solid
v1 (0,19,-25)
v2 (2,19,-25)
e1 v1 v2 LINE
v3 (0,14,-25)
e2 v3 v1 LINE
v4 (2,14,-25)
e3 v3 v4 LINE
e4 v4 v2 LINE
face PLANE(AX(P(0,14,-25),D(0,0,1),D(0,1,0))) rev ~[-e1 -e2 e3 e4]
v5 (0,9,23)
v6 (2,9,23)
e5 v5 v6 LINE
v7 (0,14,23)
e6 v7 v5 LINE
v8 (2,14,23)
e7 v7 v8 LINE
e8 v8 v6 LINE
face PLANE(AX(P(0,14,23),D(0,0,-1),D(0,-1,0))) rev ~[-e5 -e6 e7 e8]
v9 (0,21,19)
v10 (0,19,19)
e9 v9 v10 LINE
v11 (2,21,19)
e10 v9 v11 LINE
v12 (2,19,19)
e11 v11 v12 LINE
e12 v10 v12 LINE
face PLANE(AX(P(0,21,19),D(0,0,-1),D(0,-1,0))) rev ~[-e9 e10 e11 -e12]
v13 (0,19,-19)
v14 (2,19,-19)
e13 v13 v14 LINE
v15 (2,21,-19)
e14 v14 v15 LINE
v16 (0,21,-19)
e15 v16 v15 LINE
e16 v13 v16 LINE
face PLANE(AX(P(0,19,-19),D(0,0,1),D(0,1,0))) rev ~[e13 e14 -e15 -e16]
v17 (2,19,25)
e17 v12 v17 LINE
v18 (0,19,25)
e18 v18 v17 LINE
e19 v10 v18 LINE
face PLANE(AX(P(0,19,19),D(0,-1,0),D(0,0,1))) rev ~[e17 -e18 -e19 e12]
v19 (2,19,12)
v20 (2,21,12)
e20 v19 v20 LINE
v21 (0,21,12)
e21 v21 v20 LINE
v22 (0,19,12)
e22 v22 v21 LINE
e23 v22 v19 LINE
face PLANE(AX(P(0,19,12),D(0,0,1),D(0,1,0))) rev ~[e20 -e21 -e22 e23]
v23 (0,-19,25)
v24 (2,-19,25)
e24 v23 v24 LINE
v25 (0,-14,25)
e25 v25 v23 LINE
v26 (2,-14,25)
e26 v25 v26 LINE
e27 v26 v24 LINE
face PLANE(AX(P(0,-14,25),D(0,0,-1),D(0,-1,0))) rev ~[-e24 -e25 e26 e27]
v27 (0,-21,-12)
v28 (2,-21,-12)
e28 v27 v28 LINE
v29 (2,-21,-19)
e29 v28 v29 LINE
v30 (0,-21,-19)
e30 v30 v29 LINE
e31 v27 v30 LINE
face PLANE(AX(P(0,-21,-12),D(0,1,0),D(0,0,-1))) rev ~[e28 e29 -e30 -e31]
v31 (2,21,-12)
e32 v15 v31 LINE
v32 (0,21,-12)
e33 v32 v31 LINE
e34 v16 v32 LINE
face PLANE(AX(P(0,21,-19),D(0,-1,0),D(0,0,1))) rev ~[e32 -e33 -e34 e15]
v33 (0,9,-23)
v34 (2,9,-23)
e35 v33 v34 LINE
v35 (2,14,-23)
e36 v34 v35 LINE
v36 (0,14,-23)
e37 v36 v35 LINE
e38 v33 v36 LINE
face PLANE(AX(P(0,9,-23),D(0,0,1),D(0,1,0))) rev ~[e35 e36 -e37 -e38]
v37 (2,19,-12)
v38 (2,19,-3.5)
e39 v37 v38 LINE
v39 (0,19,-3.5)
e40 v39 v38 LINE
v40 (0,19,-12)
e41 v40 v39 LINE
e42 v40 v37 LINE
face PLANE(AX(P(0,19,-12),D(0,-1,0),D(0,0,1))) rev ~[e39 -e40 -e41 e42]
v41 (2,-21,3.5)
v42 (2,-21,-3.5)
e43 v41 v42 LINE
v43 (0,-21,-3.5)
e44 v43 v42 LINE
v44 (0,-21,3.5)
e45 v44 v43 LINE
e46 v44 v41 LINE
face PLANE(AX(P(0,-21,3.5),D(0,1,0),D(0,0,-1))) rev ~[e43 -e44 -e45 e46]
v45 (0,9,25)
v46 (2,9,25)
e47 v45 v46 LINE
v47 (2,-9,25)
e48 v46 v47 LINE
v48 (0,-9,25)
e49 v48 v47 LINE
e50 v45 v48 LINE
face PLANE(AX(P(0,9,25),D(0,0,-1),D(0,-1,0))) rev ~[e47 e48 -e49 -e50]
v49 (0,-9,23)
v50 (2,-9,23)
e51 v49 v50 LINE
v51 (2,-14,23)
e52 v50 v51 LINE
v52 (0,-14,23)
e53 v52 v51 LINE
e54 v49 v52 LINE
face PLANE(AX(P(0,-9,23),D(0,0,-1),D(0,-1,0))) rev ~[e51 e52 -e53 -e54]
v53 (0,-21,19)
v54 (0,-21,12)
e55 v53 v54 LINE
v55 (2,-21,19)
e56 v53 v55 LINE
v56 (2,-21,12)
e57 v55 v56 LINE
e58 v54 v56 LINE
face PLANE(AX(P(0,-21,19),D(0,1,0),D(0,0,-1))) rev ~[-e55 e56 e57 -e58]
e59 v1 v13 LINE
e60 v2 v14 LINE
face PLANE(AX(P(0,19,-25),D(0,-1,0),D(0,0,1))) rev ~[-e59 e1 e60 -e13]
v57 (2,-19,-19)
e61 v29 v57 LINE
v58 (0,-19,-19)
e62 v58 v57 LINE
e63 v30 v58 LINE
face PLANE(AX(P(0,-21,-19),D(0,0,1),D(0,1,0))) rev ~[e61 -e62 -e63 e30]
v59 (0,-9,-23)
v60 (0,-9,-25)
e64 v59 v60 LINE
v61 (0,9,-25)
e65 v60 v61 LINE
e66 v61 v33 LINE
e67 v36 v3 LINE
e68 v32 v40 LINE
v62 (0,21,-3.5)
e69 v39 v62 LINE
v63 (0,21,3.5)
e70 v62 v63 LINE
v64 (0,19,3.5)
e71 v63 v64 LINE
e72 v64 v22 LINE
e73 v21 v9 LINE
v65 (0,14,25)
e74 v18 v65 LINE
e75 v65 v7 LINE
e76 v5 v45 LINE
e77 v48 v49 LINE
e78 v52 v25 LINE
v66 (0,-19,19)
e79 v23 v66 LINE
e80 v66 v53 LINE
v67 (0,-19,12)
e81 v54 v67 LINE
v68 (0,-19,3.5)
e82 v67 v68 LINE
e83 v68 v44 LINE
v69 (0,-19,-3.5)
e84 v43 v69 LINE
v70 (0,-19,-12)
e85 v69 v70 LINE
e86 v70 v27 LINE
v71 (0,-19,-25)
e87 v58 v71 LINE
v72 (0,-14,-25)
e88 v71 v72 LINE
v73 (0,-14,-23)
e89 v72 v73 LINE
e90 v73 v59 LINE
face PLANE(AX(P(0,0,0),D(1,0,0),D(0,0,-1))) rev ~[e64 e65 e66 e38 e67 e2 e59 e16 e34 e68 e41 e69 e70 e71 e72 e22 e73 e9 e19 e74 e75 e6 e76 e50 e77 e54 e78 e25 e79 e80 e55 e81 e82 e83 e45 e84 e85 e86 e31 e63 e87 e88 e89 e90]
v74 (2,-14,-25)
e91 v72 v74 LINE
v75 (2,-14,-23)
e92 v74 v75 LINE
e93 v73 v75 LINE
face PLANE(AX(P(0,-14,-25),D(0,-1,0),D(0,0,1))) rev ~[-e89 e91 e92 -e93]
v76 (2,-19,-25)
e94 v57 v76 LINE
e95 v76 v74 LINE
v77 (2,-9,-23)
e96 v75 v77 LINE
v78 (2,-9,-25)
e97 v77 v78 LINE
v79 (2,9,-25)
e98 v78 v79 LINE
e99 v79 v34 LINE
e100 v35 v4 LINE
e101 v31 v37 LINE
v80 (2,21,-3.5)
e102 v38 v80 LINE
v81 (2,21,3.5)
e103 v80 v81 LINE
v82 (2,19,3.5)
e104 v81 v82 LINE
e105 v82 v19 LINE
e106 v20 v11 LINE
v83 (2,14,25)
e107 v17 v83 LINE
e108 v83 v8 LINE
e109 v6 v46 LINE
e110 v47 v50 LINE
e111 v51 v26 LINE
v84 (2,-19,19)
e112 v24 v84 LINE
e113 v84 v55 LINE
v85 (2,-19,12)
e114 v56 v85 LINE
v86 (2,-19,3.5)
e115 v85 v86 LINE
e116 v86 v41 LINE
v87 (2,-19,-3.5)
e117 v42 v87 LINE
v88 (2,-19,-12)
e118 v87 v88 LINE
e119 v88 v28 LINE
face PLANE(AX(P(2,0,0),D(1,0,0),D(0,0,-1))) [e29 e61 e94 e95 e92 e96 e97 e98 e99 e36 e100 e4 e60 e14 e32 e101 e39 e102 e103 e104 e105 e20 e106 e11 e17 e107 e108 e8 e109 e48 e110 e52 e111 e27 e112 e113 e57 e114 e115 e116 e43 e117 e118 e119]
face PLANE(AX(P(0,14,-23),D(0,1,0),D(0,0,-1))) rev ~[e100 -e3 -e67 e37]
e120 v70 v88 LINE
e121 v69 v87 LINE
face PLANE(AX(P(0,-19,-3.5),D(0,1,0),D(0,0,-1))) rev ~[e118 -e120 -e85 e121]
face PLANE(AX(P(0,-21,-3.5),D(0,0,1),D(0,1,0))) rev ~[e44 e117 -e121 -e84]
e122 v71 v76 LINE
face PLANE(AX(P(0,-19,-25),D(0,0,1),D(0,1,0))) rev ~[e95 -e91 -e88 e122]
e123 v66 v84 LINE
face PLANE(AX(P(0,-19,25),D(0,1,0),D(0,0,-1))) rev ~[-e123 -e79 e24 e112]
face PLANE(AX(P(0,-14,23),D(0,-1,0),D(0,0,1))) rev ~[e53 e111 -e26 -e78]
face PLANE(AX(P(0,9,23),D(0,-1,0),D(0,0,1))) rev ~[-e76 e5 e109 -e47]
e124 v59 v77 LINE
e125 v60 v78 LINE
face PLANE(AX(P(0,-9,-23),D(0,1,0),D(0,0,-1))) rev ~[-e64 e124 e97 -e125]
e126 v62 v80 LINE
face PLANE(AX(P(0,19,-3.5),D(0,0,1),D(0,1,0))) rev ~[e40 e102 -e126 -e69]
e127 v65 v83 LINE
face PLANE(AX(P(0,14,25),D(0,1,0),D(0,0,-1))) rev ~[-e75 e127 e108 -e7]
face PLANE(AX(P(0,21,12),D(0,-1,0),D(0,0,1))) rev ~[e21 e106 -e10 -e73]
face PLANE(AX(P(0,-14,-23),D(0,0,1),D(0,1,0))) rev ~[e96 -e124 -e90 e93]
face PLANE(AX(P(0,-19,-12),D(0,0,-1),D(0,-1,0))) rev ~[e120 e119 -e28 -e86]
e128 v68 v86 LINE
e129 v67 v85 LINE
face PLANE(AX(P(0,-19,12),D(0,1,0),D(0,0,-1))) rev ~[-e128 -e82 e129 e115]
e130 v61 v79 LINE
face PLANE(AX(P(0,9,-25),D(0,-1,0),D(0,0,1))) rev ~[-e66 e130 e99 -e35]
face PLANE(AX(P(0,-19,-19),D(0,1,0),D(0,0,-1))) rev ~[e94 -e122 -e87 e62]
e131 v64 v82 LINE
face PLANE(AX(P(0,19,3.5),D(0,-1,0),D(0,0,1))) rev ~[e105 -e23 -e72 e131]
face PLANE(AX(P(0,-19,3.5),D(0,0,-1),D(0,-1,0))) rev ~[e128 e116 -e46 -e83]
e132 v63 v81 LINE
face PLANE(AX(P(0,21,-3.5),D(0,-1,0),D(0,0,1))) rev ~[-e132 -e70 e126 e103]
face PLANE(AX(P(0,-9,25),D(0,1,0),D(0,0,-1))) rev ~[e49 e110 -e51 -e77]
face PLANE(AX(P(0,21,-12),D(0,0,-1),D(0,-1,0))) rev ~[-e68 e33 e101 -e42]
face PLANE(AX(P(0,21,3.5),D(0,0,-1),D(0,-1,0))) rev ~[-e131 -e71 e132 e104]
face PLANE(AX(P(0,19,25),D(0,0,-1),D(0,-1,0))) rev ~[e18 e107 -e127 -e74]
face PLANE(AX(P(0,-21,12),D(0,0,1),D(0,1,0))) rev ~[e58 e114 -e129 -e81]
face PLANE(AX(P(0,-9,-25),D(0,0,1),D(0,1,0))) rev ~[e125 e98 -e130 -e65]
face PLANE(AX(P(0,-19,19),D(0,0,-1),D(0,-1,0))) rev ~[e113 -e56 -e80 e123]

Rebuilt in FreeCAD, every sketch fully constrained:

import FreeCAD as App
import Part
import Sketcher
from FreeCAD import Vector
Q = App.Units.Quantity


def add_polygon(sketch, points):
    """Adds a closed chain of lines whose ends are joined by coincident constraints."""
    first, n = sketch.GeometryCount, len(points)
    for a, b in zip(points, points[1:] + points[:1]):
        sketch.addGeometry(Part.LineSegment(App.Vector(*a, 0), App.Vector(*b, 0)), False)
    for i in range(n):
        sketch.addConstraint(Sketcher.Constraint("Coincident", first + i, 2, first + (i + 1) % n, 1))

doc = App.newDocument("Part")
body = doc.addObject("PartDesign::Body", "Body")

# Sketch on YZ plane
sketch1 = body.newObject("Sketcher::SketchObject", "Sketch")
sketch1.AttachmentSupport = (doc.getObject("YZ_Plane"), [""])
sketch1.MapMode = "FlatFace"
add_polygon(sketch1, [(19, 19), (19, 25), (14, 25), (14, 23), (9, 23), (9, 25), (-9, 25), (-9, 23), (-14, 23), (-14, 25), (-19, 25), (-19, 19), (-21, 19), (-21, 12), (-19, 12), (-19, 3.5), (-21, 3.5), (-21, -3.5), (-19, -3.5), (-19, -12), (-21, -12), (-21, -19), (-19, -19), (-19, -25), (-14, -25), (-14, -23), (-9, -23), (-9, -25), (9, -25), (9, -23), (14, -23), (14, -25), (19, -25), (19, -19), (21, -19), (21, -12), (19, -12), (19, -3.5), (21, -3.5), (21, 3.5), (19, 3.5), (19, 12), (21, 12), (21, 19)])  # lines 0-43
sketch1.addConstraint([
    Sketcher.Constraint("Vertical", 0),
    Sketcher.Constraint("Horizontal", 1),
    Sketcher.Constraint("Vertical", 2),
    Sketcher.Constraint("Horizontal", 3),
    Sketcher.Constraint("Vertical", 4),
    Sketcher.Constraint("Horizontal", 5),
    Sketcher.Constraint("Vertical", 6),
    Sketcher.Constraint("Horizontal", 7),
    Sketcher.Constraint("Vertical", 8),
    Sketcher.Constraint("Horizontal", 9),
    Sketcher.Constraint("Vertical", 10),
    Sketcher.Constraint("Horizontal", 11),
    Sketcher.Constraint("Vertical", 12),
    Sketcher.Constraint("Horizontal", 13),
    Sketcher.Constraint("Vertical", 14),
    Sketcher.Constraint("Horizontal", 15),
    Sketcher.Constraint("Vertical", 16),
    Sketcher.Constraint("Horizontal", 17),
    Sketcher.Constraint("Vertical", 18),
    Sketcher.Constraint("Horizontal", 19),
    Sketcher.Constraint("Vertical", 20),
    Sketcher.Constraint("Horizontal", 21),
    Sketcher.Constraint("Vertical", 22),
    Sketcher.Constraint("Horizontal", 23),
    Sketcher.Constraint("Vertical", 24),
    Sketcher.Constraint("Horizontal", 25),
    Sketcher.Constraint("Vertical", 26),
    Sketcher.Constraint("Horizontal", 27),
    Sketcher.Constraint("Vertical", 28),
    Sketcher.Constraint("Horizontal", 29),
    Sketcher.Constraint("Vertical", 30),
    Sketcher.Constraint("Horizontal", 31),
    Sketcher.Constraint("Vertical", 32),
    Sketcher.Constraint("Horizontal", 33),
    Sketcher.Constraint("Vertical", 34),
    Sketcher.Constraint("Horizontal", 35),
    Sketcher.Constraint("Vertical", 36),
    Sketcher.Constraint("Horizontal", 37),
    Sketcher.Constraint("Vertical", 38),
    Sketcher.Constraint("Horizontal", 39),
    Sketcher.Constraint("Vertical", 40),
    Sketcher.Constraint("Horizontal", 41),
    Sketcher.Constraint("Vertical", 42),
    Sketcher.Constraint("Horizontal", 43),
    Sketcher.Constraint("Symmetric", 0, 2, 22, 2, -1, 1),
    Sketcher.Constraint("Symmetric", 2, 2, 24, 2, -1, 1),
    Sketcher.Constraint("Symmetric", 4, 2, 26, 2, -1, 1),
    Sketcher.Constraint("Symmetric", 6, 2, 28, 2, -1, 1),
    Sketcher.Constraint("Symmetric", 8, 2, 30, 2, -1, 1),
    Sketcher.Constraint("Symmetric", 10, 2, 32, 2, -1, 1),
    Sketcher.Constraint("Symmetric", 12, 2, 34, 2, -1, 1),
    Sketcher.Constraint("Symmetric", 14, 2, 36, 2, -1, 1),
    Sketcher.Constraint("Symmetric", 16, 2, 38, 2, -1, 1),
    Sketcher.Constraint("Symmetric", 18, 2, 40, 2, -1, 1),
    Sketcher.Constraint("Symmetric", 20, 2, 42, 2, -1, 1),
    Sketcher.Constraint("Symmetric", 3, 2, 6, 2, -2),
    Sketcher.Constraint("Symmetric", 1, 2, 8, 2, -2),
    Sketcher.Constraint("Symmetric", 21, 2, 32, 2, -2),
    Sketcher.Constraint("Symmetric", 19, 2, 34, 2, -2),
    Sketcher.Constraint("Symmetric", 17, 2, 36, 2, -2),
    Sketcher.Constraint("Horizontal", 1, 2, 4, 2),
    Sketcher.Constraint("Vertical", 10, 2, 13, 2),
    Sketcher.Constraint("Vertical", 12, 2, 15, 2),
    Sketcher.Constraint("Equal", 1, 3),
    Sketcher.Constraint("Equal", 43, 2),
    Sketcher.Constraint("Equal", 12, 16),
    Sketcher.Constraint("DistanceX", 1, 2, 1, 1, Q("5 mm")),
    Sketcher.Constraint("DistanceX", 5, 2, 5, 1, Q("18 mm")),
    Sketcher.Constraint("DistanceX", 11, 2, 11, 1, Q("2 mm")),
    Sketcher.Constraint("DistanceY", 0, 1, 0, 2, Q("6 mm")),
    Sketcher.Constraint("DistanceY", 12, 2, 12, 1, Q("7 mm")),
    Sketcher.Constraint("DistanceY", 14, 2, 14, 1, Q("8.5 mm")),
])
pad1 = body.newObject("PartDesign::Pad", "Pad")
pad1.Profile = sketch1
pad1.Length = 2

doc.recompute()
